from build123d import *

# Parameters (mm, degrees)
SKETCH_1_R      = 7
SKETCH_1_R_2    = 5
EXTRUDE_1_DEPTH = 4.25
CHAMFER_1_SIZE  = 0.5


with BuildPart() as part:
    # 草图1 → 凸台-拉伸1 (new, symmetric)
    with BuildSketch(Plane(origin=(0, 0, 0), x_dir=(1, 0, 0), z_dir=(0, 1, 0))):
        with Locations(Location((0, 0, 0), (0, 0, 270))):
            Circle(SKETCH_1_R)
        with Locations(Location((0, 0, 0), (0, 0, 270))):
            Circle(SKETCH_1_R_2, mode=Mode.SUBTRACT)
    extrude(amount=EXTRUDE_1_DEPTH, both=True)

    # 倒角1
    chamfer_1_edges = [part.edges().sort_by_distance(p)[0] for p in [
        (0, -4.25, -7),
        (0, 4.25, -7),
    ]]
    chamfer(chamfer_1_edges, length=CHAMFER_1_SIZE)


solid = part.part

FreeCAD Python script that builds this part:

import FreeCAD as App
import Part
import Sketcher


def edges_at(feature, points):
    """Names of the edges that pass closest to the given points."""
    edges = feature.Shape.Edges
    near = lambda p: min(range(len(edges)), key=lambda i: edges[i].distToShape(Part.Vertex(*p))[0])
    return sorted({f"Edge{near(p) + 1}" for p in points})

doc = App.newDocument("Part")
params = doc.addObject("Spreadsheet::Sheet", "Params")
for row, (alias, value) in enumerate([
    ("sketch1_diameter", "14 mm"),
    ("sketch1_diameter2", "10 mm"),
    ("pad1_length", "8.5 mm"),
    ("chamfer_size", "0.5 mm"),
], start=1):
    params.set(f"A{row}", alias)
    params.set(f"B{row}", "=" + value)
    params.setAlias(f"B{row}", alias)

body = doc.addObject("PartDesign::Body", "Body")

sketch1 = body.newObject("Sketcher::SketchObject", "Sketch")
sketch1.AttachmentSupport = (doc.getObject("XZ_Plane"), [""])
sketch1.MapMode = "FlatFace"
sketch1.addGeometry([
    Part.Circle(App.Vector(0, 0, 0), App.Vector(0, 0, 1), 7),
    Part.Circle(App.Vector(0, 0, 0), App.Vector(0, 0, 1), 5),
], False)
sketch1.addConstraint([
    Sketcher.Constraint("Coincident", 0, 3, -1, 1),
    Sketcher.Constraint("Coincident", 1, 3, -1, 1),
    Sketcher.Constraint("Diameter", 0, 14.0),
    Sketcher.Constraint("Diameter", 1, 10.0),
])
sketch1.setExpression("Constraints[2]", "Params.sketch1_diameter")
sketch1.setExpression("Constraints[3]", "Params.sketch1_diameter2")
pad1 = body.newObject("PartDesign::Pad", "Pad")
pad1.Profile = sketch1
pad1.setExpression("Length", "Params.pad1_length")
pad1.Midplane = True
doc.recompute()

chamfer = body.newObject("PartDesign::Chamfer", "Chamfer")
chamfer.Base = (pad1, edges_at(pad1, [(0, -4.25, -7), (0, 4.25, -7)]))
chamfer.setExpression("Size", "Params.chamfer_size")

doc.recompute()
